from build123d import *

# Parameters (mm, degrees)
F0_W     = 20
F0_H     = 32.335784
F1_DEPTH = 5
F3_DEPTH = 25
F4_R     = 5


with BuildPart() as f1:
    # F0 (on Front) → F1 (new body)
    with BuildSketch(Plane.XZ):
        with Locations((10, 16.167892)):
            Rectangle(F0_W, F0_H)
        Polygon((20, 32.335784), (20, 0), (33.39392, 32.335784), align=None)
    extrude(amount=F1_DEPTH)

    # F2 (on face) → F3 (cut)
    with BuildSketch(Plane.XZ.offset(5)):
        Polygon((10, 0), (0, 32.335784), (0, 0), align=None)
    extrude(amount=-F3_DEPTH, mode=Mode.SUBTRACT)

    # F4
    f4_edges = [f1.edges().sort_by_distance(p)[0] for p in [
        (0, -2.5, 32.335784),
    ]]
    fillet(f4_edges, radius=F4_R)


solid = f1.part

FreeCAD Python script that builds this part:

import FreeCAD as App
import Part
import Sketcher
Q = App.Units.Quantity


def edges_at(feature, points):
    """Names of the edges that pass closest to the given points."""
    edges = feature.Shape.Edges
    near = lambda p: min(range(len(edges)), key=lambda i: edges[i].distToShape(Part.Vertex(*p))[0])
    return sorted({f"Edge{near(p) + 1}" for p in points})


def add_polygon(sketch, points):
    """Adds a closed chain of lines whose ends are joined by coincident constraints."""
    first, n = sketch.GeometryCount, len(points)
    for a, b in zip(points, points[1:] + points[:1]):
        sketch.addGeometry(Part.LineSegment(App.Vector(*a, 0), App.Vector(*b, 0)), False)
    for i in range(n):
        sketch.addConstraint(Sketcher.Constraint("Coincident", first + i, 2, first + (i + 1) % n, 1))

doc = App.newDocument("Part")
params = doc.addObject("Spreadsheet::Sheet", "Params")
for row, (alias, value) in enumerate([
    ("sketch1_width", "20 mm"),
    ("sketch1_length", "35 mm"),
    ("pad1_length", "5 mm"),
    ("sketch2_width", "10 mm"),
    ("pocket1_length", "25 mm"),
    ("fillet_radius", "5 mm"),
], start=1):
    params.set(f"A{row}", alias)
    params.set(f"B{row}", "=" + value)
    params.setAlias(f"B{row}", alias)

body = doc.addObject("PartDesign::Body", "Body")

# Sketch on XZ plane
sketch1 = body.newObject("Sketcher::SketchObject", "Sketch")
sketch1.AttachmentSupport = (doc.getObject("XZ_Plane"), [""])
sketch1.MapMode = "FlatFace"
add_polygon(sketch1, [(0, 32), (0, 0), (20, 0), (33, 32)])  # lines 0-3
sketch1.addConstraint([
    Sketcher.Constraint("Vertical", 0),
    Sketcher.Constraint("Horizontal", 1),
    Sketcher.Constraint("Horizontal", 3),
    Sketcher.Constraint("Coincident", 0, 2, -1, 1),
    Sketcher.Constraint("DistanceX", 1, 1, 1, 2, Q("20 mm")),
    Sketcher.Constraint("Distance", 2, Q("35 mm")),
    Sketcher.Constraint("Angle", 2, Q("67.5 deg")),
])
sketch1.setExpression("Constraints[8]", "Params.sketch1_width")
sketch1.setExpression("Constraints[9]", "Params.sketch1_length")
pad1 = body.newObject("PartDesign::Pad", "Pad")
pad1.Profile = sketch1
pad1.setExpression("Length", "Params.pad1_length")

# Sketch on XZ plane
sketch2 = body.newObject("Sketcher::SketchObject", "Sketch001")
sketch2.AttachmentSupport = (doc.getObject("XZ_Plane"), [""])
sketch2.MapMode = "FlatFace"
sketch2.AttachmentOffset = App.Placement(App.Vector(0, 0, 5), App.Rotation())
add_polygon(sketch2, [(10, 0), (0, 32), (0, 0)])  # lines 0-2
sketch2.addConstraint([
    Sketcher.Constraint("Vertical", 1),
    Sketcher.Constraint("Horizontal", 2),
    Sketcher.Constraint("Coincident", 1, 2, -1, 1),
    Sketcher.Constraint("DistanceX", 2, 1, 2, 2, Q("10 mm")),
    Sketcher.Constraint("DistanceY", 1, 2, 1, 1, Q("32.335784 mm")),
])
sketch2.setExpression("Constraints[6]", "Params.sketch2_width")
pocket1 = body.newObject("PartDesign::Pocket", "Pocket")
pocket1.Profile = sketch2
pocket1.setExpression("Length", "Params.pocket1_length")
doc.recompute()

fillet = body.newObject("PartDesign::Fillet", "Fillet")
fillet.Base = (pocket1, edges_at(pocket1, [(0, -2.5, 32.336)]))
fillet.setExpression("Radius", "Params.fillet_radius")

doc.recompute()
